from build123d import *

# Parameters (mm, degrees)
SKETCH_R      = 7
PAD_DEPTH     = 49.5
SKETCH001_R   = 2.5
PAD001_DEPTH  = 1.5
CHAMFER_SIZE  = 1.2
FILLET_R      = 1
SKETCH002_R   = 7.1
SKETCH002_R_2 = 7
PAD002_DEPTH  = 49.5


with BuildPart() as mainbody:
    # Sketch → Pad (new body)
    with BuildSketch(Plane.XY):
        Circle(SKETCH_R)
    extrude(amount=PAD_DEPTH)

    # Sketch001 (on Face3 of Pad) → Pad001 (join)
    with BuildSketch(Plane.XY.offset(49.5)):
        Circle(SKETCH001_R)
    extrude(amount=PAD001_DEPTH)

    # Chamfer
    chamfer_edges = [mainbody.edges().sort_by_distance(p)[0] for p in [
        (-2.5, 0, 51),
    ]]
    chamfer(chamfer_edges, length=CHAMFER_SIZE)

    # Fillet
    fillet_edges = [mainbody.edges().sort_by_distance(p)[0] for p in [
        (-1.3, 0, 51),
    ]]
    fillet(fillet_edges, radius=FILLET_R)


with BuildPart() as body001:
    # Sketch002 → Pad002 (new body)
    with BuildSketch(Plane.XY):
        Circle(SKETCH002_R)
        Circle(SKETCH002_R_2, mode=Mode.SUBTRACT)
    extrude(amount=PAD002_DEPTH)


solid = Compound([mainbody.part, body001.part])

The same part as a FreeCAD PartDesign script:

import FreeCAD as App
import Part
import Sketcher
from FreeCAD import Vector
Q = App.Units.Quantity


def edges_at(feature, points):
    """Names of the edges that pass closest to the given points."""
    edges = feature.Shape.Edges
    near = lambda p: min(range(len(edges)), key=lambda i: edges[i].distToShape(Part.Vertex(*p))[0])
    return sorted({f"Edge{near(p) + 1}" for p in points})

doc = App.newDocument("Part")
body = doc.addObject("PartDesign::Body", "Body")

# Sketch on XY plane
sketch1 = body.newObject("Sketcher::SketchObject", "Sketch")
sketch1.AttachmentSupport = (doc.getObject("XY_Plane"), [""])
sketch1.MapMode = "FlatFace"
sketch1.addGeometry(Part.Circle(Vector(0, 0, 0), Vector(0, 0, 1), 7), False)
sketch1.addConstraint(Sketcher.Constraint("Coincident", 0, 3, -1, 1))
sketch1.addConstraint(Sketcher.Constraint("Diameter", 0, Q("14 mm")))
pad1 = body.newObject("PartDesign::Pad", "Pad")
pad1.Profile = sketch1
pad1.Length = 49.5

# Sketch on XY plane
sketch2 = body.newObject("Sketcher::SketchObject", "Sketch001")
sketch2.AttachmentSupport = (doc.getObject("XY_Plane"), [""])
sketch2.MapMode = "FlatFace"
sketch2.AttachmentOffset = App.Placement(Vector(0, 0, 49.5), App.Rotation())
sketch2.addGeometry(Part.Circle(Vector(0, 0, 0), Vector(0, 0, 1), 2.5), False)
sketch2.addConstraint(Sketcher.Constraint("Coincident", 0, 3, -1, 1))
sketch2.addConstraint(Sketcher.Constraint("Diameter", 0, Q("5 mm")))
pad2 = body.newObject("PartDesign::Pad", "Pad001")
pad2.Profile = sketch2
pad2.Length = 1.5
doc.recompute()

chamfer = body.newObject("PartDesign::Chamfer", "Chamfer")
chamfer.Base = (pad2, edges_at(pad2, [(-2.5, 0, 51)]))
chamfer.Size = 1.2
doc.recompute()

fillet = body.newObject("PartDesign::Fillet", "Fillet")
fillet.Base = (chamfer, edges_at(chamfer, [(-1.3, 0, 51)]))
fillet.Radius = 1
body2 = doc.addObject("PartDesign::Body", "Body001")

# Sketch on XY plane
sketch3 = body2.newObject("Sketcher::SketchObject", "Sketch002")
sketch3.AttachmentSupport = (doc.getObject("XY_Plane001"), [""])
sketch3.MapMode = "FlatFace"
sketch3.addGeometry(Part.Circle(Vector(0, 0, 0), Vector(0, 0, 1), 7), False)
sketch3.addGeometry(Part.Circle(Vector(0, 0, 0), Vector(0, 0, 1), 7), False)
sketch3.addConstraint(Sketcher.Constraint("Coincident", 0, 3, -1, 1))
sketch3.addConstraint(Sketcher.Constraint("Coincident", 1, 3, -1, 1))
sketch3.addConstraint(Sketcher.Constraint("Diameter", 1, Q("14 mm")))
sketch3.addConstraint(Sketcher.Constraint("Diameter", 0, Q("14.2 mm")))
pad3 = body2.newObject("PartDesign::Pad", "Pad002")
pad3.Profile = sketch3
pad3.Length = 49.5

doc.recompute()
